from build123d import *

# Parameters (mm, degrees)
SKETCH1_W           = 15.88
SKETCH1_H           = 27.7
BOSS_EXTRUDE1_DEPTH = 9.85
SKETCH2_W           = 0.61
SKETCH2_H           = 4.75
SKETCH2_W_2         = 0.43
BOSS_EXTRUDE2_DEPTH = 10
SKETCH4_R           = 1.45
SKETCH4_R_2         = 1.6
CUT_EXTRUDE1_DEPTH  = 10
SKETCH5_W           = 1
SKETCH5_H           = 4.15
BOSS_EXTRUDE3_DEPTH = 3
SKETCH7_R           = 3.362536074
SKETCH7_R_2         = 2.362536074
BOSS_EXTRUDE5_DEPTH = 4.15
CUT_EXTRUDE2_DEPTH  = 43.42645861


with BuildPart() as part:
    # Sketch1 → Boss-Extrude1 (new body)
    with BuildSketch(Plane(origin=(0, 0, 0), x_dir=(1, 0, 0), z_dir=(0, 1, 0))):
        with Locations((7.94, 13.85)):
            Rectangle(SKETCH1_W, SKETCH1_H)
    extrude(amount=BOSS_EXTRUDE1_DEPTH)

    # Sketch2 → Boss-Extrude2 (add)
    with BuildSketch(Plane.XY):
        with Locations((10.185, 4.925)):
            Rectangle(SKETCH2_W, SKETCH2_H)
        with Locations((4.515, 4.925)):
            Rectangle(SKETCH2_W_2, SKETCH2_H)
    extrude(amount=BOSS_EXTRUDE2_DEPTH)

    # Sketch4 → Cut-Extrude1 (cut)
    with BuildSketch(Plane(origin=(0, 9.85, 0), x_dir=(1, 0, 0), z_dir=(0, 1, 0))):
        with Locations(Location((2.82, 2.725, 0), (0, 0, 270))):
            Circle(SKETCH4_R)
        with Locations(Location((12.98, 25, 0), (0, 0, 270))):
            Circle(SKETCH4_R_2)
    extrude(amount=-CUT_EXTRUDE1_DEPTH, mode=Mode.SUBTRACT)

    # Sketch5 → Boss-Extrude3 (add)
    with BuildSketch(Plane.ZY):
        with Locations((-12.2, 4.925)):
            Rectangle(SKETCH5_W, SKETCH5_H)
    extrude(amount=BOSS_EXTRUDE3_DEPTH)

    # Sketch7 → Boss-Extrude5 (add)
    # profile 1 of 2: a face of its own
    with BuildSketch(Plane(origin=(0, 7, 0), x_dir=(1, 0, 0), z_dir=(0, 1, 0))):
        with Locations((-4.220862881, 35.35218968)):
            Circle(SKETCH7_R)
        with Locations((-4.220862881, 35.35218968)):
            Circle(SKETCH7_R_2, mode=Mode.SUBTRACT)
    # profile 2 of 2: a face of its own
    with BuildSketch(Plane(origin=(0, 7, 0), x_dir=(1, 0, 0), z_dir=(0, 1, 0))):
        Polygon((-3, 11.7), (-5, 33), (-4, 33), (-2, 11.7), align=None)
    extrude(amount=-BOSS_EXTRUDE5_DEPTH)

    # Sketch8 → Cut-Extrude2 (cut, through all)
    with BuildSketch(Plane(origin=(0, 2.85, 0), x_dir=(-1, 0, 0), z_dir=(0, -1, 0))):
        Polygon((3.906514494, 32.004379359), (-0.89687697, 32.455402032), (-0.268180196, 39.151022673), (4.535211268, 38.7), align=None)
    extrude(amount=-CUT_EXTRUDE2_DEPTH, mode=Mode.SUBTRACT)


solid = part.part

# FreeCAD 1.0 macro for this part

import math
import FreeCAD as App
import Part
import Sketcher

V = App.Vector

doc = App.newDocument("Part")
params = doc.addObject("Spreadsheet::Sheet", "Params")
for row, (alias, value) in enumerate([
    ("sketch1_height", "27.7 mm"),
    ("sketch1_width", "15.88 mm"),
    ("pad1_length", "9.85 mm"),
    ("sketch2_width", "0.61 mm"),
    ("sketch2_width2", "0.43 mm"),
    ("sketch2_height", "4.75 mm"),
    ("pad2_length", "10 mm"),
    ("sketch3_diameter", "2.9 mm"),
    ("sketch3_diameter2", "3.2 mm"),
    ("pocket1_length", "10 mm"),
    ("sketch4_height", "1 mm"),
    ("sketch4_width", "4.15 mm"),
    ("pad3_length", "3 mm"),
    ("sketch5_width", "1 mm"),
    ("pad4_length", "4.15 mm"),
], start=1):
    params.set(f"A{row}", alias)
    params.set(f"B{row}", "=" + value)
    params.setAlias(f"B{row}", alias)

body = doc.addObject("PartDesign::Body", "Body")

# Sketch on XZ plane
sketch1 = body.newObject("Sketcher::SketchObject", "Sketch")
sketch1.AttachmentSupport = (doc.getObject("XZ_Plane"), [""])
sketch1.MapMode = "FlatFace"
sketch1.addGeometry([
    Part.LineSegment(V(0, -28, 0), V(0, 0, 0)),
    Part.LineSegment(V(0, 0, 0), V(16, 0, 0)),
    Part.LineSegment(V(16, 0, 0), V(16, -28, 0)),
    Part.LineSegment(V(16, -28, 0), V(0, -28, 0)),
], False)
sketch1.addConstraint([
    Sketcher.Constraint("Coincident", 0, 2, 1, 1),
    Sketcher.Constraint("Coincident", 1, 2, 2, 1),
    Sketcher.Constraint("Coincident", 2, 2, 3, 1),
    Sketcher.Constraint("Coincident", 3, 2, 0, 1),
    Sketcher.Constraint("Vertical", 0),
    Sketcher.Constraint("Horizontal", 1),
    Sketcher.Constraint("Vertical", 2),
    Sketcher.Constraint("Horizontal", 3),
    Sketcher.Constraint("Coincident", 0, 2, -1, 1),
    Sketcher.Constraint("DistanceY", 0, 1, 0, 2, 27.7),
    Sketcher.Constraint("DistanceX", 1, 1, 1, 2, 15.88),
])
sketch1.setExpression("Constraints[9]", "Params.sketch1_height")
sketch1.setExpression("Constraints[10]", "Params.sketch1_width")
pad1 = body.newObject("PartDesign::Pad", "Pad")
pad1.Profile = sketch1
pad1.setExpression("Length", "Params.pad1_length")
pad1.Reversed = True

# Sketch on XY plane
sketch2 = body.newObject("Sketcher::SketchObject", "Sketch001")
sketch2.AttachmentSupport = (doc.getObject("XY_Plane"), [""])
sketch2.MapMode = "FlatFace"
sketch2.addGeometry([
    Part.LineSegment(V(9.88, 7.3, 0), V(9.88, 2.55, 0)),  # 0
    Part.LineSegment(V(9.88, 2.55, 0), V(10.49, 2.55, 0)),  # 1
    Part.LineSegment(V(10.49, 2.55, 0), V(10.49, 7.3, 0)),  # 2
    Part.LineSegment(V(10.49, 7.3, 0), V(9.88, 7.3, 0)),  # 3
    Part.LineSegment(V(4.3, 7.3, 0), V(4.3, 2.55, 0)),  # 4
    Part.LineSegment(V(4.3, 2.55, 0), V(4.73, 2.55, 0)),  # 5
    Part.LineSegment(V(4.73, 2.55, 0), V(4.73, 7.3, 0)),  # 6
    Part.LineSegment(V(4.73, 7.3, 0), V(4.3, 7.3, 0)),  # 7
], False)
sketch2.addConstraint([
    Sketcher.Constraint("Coincident", 0, 2, 1, 1),
    Sketcher.Constraint("Coincident", 1, 2, 2, 1),
    Sketcher.Constraint("Coincident", 2, 2, 3, 1),
    Sketcher.Constraint("Coincident", 3, 2, 0, 1),
    Sketcher.Constraint("Coincident", 4, 2, 5, 1),
    Sketcher.Constraint("Coincident", 5, 2, 6, 1),
    Sketcher.Constraint("Coincident", 6, 2, 7, 1),
    Sketcher.Constraint("Coincident", 7, 2, 4, 1),
    Sketcher.Constraint("Vertical", 0),
    Sketcher.Constraint("Horizontal", 1),
    Sketcher.Constraint("Vertical", 2),
    Sketcher.Constraint("Horizontal", 3),
    Sketcher.Constraint("Vertical", 4),
    Sketcher.Constraint("Horizontal", 5),
    Sketcher.Constraint("Vertical", 6),
    Sketcher.Constraint("Horizontal", 7),
    Sketcher.Constraint("Horizontal", 1, 2, 4, 2),
    Sketcher.Constraint("Horizontal", 3, 2, 6, 2),
    Sketcher.Constraint("DistanceX", 1, 1, 1, 2, 0.61),
    Sketcher.Constraint("DistanceX", 5, 1, 5, 2, 0.43),
    Sketcher.Constraint("DistanceY", 0, 2, 0, 1, 4.75),
    Sketcher.Constraint("DistanceY", -1, 1, 2, 2, 7.3),
    Sketcher.Constraint("DistanceX", -1, 1, 4, 2, 4.3),
    Sketcher.Constraint("DistanceX", -1, 1, 0, 2, 9.88),
])
sketch2.setExpression("Constraints[18]", "Params.sketch2_width")
sketch2.setExpression("Constraints[19]", "Params.sketch2_width2")
sketch2.setExpression("Constraints[20]", "Params.sketch2_height")
pad2 = body.newObject("PartDesign::Pad", "Pad001")
pad2.Profile = sketch2
pad2.setExpression("Length", "Params.pad2_length")

# Sketch on XZ plane
sketch3 = body.newObject("Sketcher::SketchObject", "Sketch002")
sketch3.AttachmentSupport = (doc.getObject("XZ_Plane"), [""])
sketch3.MapMode = "FlatFace"
sketch3.AttachmentOffset = App.Placement(V(0, 0, -9.85), App.Rotation())
sketch3.addGeometry([
    Part.Circle(V(2.8, -2.7, 0), V(0, 0, 1), 1.4),
    Part.Circle(V(13, -25, 0), V(0, 0, 1), 1.6),
], False)
sketch3.addConstraint([
    Sketcher.Constraint("Diameter", 0, 2.9),
    Sketcher.Constraint("Diameter", 1, 3.2),
    Sketcher.Constraint("DistanceY", 1, 3, -1, 1, 25.0),
    Sketcher.Constraint("DistanceX", -1, 1, 0, 3, 2.82),
    Sketcher.Constraint("DistanceX", -1, 1, 1, 3, 12.98),
    Sketcher.Constraint("DistanceY", 0, 3, -1, 1, 2.725),
])
sketch3.setExpression("Constraints[0]", "Params.sketch3_diameter")
sketch3.setExpression("Constraints[1]", "Params.sketch3_diameter2")
pocket1 = body.newObject("PartDesign::Pocket", "Pocket")
pocket1.Profile = sketch3
pocket1.setExpression("Length", "Params.pocket1_length")
pocket1.Reversed = True

# Sketch on YZ plane
sketch4 = body.newObject("Sketcher::SketchObject", "Sketch003")
sketch4.AttachmentSupport = (doc.getObject("YZ_Plane"), [""])
sketch4.MapMode = "FlatFace"
sketch4.addGeometry([
    Part.LineSegment(V(7, -12.7, 0), V(2.9, -12.7, 0)),
    Part.LineSegment(V(2.9, -12.7, 0), V(2.9, -11.7, 0)),
    Part.LineSegment(V(2.9, -11.7, 0), V(7, -11.7, 0)),
    Part.LineSegment(V(7, -11.7, 0), V(7, -12.7, 0)),
], False)
sketch4.addConstraint([
    Sketcher.Constraint("Coincident", 0, 2, 1, 1),
    Sketcher.Constraint("Coincident", 1, 2, 2, 1),
    Sketcher.Constraint("Coincident", 2, 2, 3, 1),
    Sketcher.Constraint("Coincident", 3, 2, 0, 1),
    Sketcher.Constraint("Horizontal", 0),
    Sketcher.Constraint("Vertical", 1),
    Sketcher.Constraint("Horizontal", 2),
    Sketcher.Constraint("Vertical", 3),
    Sketcher.Constraint("DistanceY", 1, 1, 1, 2, 1.0),
    Sketcher.Constraint("DistanceX", -1, 1, 2, 2, 7.0),
    Sketcher.Constraint("DistanceX", 0, 2, 0, 1, 4.15),
    Sketcher.Constraint("DistanceY", 0, 2, -1, 1, 12.7),
])
sketch4.setExpression("Constraints[8]", "Params.sketch4_height")
sketch4.setExpression("Constraints[10]", "Params.sketch4_width")
pad3 = body.newObject("PartDesign::Pad", "Pad002")
pad3.Profile = sketch4
pad3.setExpression("Length", "Params.pad3_length")
pad3.Reversed = True

# Sketch on XZ plane
sketch5 = body.newObject("Sketcher::SketchObject", "Sketch004")
sketch5.AttachmentSupport = (doc.getObject("XZ_Plane"), [""])
sketch5.MapMode = "FlatFace"
sketch5.AttachmentOffset = App.Placement(V(0, 0, -7), App.Rotation())
sketch5.addGeometry([
    Part.ArcOfCircle(Part.Circle(V(-4.22, -35.35, 0), V(0, 0, 1), 3.36), math.radians(102), math.radians(445)),  # 0
    Part.LineSegment(V(-4.91, -32.06, 0), V(-3, -11.7, 0)),  # 1
    Part.LineSegment(V(-3, -11.7, 0), V(-2, -11.7, 0)),  # 2
    Part.LineSegment(V(-2, -11.7, 0), V(-3.91, -32, 0)),  # 3
    Part.LineSegment(V(-4, -33, 0), V(-4.44, -33, 0)),  # 4
    Part.ArcOfCircle(Part.Circle(V(-4.22, -35.35, 0), V(0, 0, 1), 2.36), math.radians(95), math.radians(445)),  # 5
], False)
sketch5.addConstraint([
    Sketcher.Constraint("Coincident", 0, 1, 1, 1),
    Sketcher.Constraint("Coincident", 1, 2, 2, 1),
    Sketcher.Constraint("Coincident", 2, 2, 3, 1),
    Sketcher.Constraint("Coincident", 3, 2, 0, 2),
    Sketcher.Constraint("Coincident", 4, 1, 5, 2),
    Sketcher.Constraint("Coincident", 5, 1, 4, 2),
    Sketcher.Constraint("Horizontal", 2),
    Sketcher.Constraint("Horizontal", 4),
    Sketcher.Constraint("Coincident", 5, 3, 0, 3),
    Sketcher.Constraint("Parallel", 1, 3),
    Sketcher.Constraint("DistanceX", 2, 1, 2, 2, 1.0),
    Sketcher.Constraint("DistanceX", 1, 2, -1, 1, 3.0),
    Sketcher.Constraint("DistanceX", 4, 1, -1, 1, 4.0),
    Sketcher.Constraint("DistanceY", 4, 1, -1, 1, 33.0),
    Sketcher.Constraint("DistanceY", 1, 2, -1, 1, 11.7),
    Sketcher.Constraint("Radius", 0, 3.362536),
    Sketcher.Constraint("Radius", 5, 2.362536),
    Sketcher.Constraint("DistanceX", 4, 2, 4, 1, 0.441726),
    Sketcher.Constraint("DistanceX", 0, 1, -1, 1, 4.911871),
])
sketch5.setExpression("Constraints[10]", "Params.sketch5_width")
pad4 = body.newObject("PartDesign::Pad", "Pad003")
pad4.Profile = sketch5
pad4.setExpression("Length", "Params.pad4_length")

# Sketch on XZ plane
sketch6 = body.newObject("Sketcher::SketchObject", "Sketch005")
sketch6.AttachmentSupport = (doc.getObject("XZ_Plane"), [""])
sketch6.MapMode = "FlatFace"
sketch6.AttachmentOffset = App.Placement(V(0, 0, -2.85), App.Rotation())
sketch6.addGeometry([
    Part.LineSegment(V(0.9, -32.5, 0), V(-3.9, -32, 0)),
    Part.LineSegment(V(-3.9, -32, 0), V(-4.5, -38.7, 0)),
    Part.LineSegment(V(-4.5, -38.7, 0), V(0.3, -39.2, 0)),
    Part.LineSegment(V(0.3, -39.2, 0), V(0.9, -32.5, 0)),
], False)
sketch6.addConstraint([
    Sketcher.Constraint("Coincident", 0, 2, 1, 1),
    Sketcher.Constraint("Coincident", 1, 2, 2, 1),
    Sketcher.Constraint("Coincident", 2, 2, 3, 1),
    Sketcher.Constraint("Coincident", 3, 2, 0, 1),
    Sketcher.Constraint("Perpendicular", 0, 1),
    Sketcher.Constraint("Perpendicular", 1, 2),
    Sketcher.Constraint("Perpendicular", 2, 3),
    Sketcher.Constraint("DistanceY", 1, 2, -1, 1, 38.7),
    Sketcher.Constraint("Distance", 0, 4.82452),
    Sketcher.Constraint("DistanceY", 0, 2, -1, 1, 32.004379),
    Sketcher.Constraint("DistanceX", 1, 2, -1, 1, 4.535211),
    Sketcher.Constraint("DistanceX", -1, 1, 2, 2, 0.26818),
])
pocket2 = body.newObject("PartDesign::Pocket", "Pocket001")
pocket2.Profile = sketch6
pocket2.Type = "ThroughAll"

doc.recompute()
